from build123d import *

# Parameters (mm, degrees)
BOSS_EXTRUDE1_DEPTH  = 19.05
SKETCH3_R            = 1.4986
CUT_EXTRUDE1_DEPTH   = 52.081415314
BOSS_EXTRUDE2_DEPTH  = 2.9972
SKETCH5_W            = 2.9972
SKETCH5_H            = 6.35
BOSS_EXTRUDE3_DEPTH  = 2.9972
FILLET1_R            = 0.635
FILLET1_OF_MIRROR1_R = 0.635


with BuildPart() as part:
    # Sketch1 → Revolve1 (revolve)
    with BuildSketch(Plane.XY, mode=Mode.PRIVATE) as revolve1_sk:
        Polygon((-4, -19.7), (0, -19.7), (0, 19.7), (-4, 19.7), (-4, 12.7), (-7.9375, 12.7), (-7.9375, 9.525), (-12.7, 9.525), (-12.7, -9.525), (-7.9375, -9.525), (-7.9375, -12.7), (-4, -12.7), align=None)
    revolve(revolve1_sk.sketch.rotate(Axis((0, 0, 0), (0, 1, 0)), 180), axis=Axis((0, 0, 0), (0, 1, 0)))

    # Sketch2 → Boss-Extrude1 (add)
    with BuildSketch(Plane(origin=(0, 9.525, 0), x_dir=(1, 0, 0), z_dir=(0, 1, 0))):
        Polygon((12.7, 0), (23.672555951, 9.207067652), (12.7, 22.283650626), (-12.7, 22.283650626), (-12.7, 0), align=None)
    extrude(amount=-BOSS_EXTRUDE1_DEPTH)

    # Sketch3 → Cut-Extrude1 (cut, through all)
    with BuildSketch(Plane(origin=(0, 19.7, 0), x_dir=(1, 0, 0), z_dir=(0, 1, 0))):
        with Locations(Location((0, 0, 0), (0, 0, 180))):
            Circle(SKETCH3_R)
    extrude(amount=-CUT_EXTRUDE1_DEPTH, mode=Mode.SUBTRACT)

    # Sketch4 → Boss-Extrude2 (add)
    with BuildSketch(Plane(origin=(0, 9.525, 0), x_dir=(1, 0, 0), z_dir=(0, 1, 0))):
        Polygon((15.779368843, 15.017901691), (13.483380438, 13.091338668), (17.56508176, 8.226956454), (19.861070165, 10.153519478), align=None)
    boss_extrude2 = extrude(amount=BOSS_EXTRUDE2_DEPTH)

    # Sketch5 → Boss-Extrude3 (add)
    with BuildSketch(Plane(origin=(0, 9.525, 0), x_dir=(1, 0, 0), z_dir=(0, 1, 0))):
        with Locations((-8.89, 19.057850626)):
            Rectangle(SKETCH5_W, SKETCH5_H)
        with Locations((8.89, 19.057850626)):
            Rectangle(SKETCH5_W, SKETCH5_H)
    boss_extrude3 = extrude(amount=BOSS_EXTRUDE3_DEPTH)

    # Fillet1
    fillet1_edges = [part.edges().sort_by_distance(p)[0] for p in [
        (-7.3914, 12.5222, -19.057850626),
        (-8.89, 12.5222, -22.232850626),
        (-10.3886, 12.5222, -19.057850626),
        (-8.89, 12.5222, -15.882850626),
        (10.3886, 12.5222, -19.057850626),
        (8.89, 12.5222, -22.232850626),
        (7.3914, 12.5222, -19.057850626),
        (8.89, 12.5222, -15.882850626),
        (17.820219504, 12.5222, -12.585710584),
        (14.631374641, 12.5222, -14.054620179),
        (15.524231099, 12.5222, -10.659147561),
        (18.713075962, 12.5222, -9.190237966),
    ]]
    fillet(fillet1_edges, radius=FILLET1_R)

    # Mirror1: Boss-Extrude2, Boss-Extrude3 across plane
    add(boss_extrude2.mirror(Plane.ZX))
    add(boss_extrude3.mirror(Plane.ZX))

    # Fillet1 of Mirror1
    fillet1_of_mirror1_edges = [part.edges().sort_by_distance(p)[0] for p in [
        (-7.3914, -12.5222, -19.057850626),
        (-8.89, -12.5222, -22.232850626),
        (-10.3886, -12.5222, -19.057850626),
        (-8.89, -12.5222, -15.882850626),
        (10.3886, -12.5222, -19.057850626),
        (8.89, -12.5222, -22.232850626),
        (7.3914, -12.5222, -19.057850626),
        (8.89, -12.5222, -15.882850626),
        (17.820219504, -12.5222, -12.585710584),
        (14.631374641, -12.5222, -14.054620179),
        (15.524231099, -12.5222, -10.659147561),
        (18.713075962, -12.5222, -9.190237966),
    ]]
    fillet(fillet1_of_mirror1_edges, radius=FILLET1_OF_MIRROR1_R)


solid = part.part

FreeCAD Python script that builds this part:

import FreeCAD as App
import Part
import Sketcher
from FreeCAD import Vector
Q = App.Units.Quantity


def edges_at(feature, points):
    """Names of the edges that pass closest to the given points."""
    edges = feature.Shape.Edges
    near = lambda p: min(range(len(edges)), key=lambda i: edges[i].distToShape(Part.Vertex(*p))[0])
    return sorted({f"Edge{near(p) + 1}" for p in points})


def add_polygon(sketch, points):
    """Adds a closed chain of lines whose ends are joined by coincident constraints."""
    first, n = sketch.GeometryCount, len(points)
    for a, b in zip(points, points[1:] + points[:1]):
        sketch.addGeometry(Part.LineSegment(App.Vector(*a, 0), App.Vector(*b, 0)), False)
    for i in range(n):
        sketch.addConstraint(Sketcher.Constraint("Coincident", first + i, 2, first + (i + 1) % n, 1))

doc = App.newDocument("Part")
params = doc.addObject("Spreadsheet::Sheet", "Params")
for row, (alias, value) in enumerate([
    ("sketch1_height", "0.75 in"),
    ("sketch1_width", "0.1875 in"),
    ("revolution_angle", "360 deg"),
    ("sketch2_width", "1 in"),
    ("pad1_length", "0.75 in"),
    ("sketch3_diameter", "0.118 in"),
    ("sketch4_length", "0.25 in"),
    ("sketch4_length2", "0.118 in"),
    ("pad2_length", "0.118 in"),
    ("sketch5_height", "0.25 in"),
    ("sketch5_width", "0.118 in"),
    ("pad3_length", "0.118 in"),
    ("fillet_radius", "0.025 in"),
    ("fillet2_radius", "0.025 in"),
], start=1):
    params.set(f"A{row}", alias)
    params.set(f"B{row}", "=" + value)
    params.setAlias(f"B{row}", alias)

body = doc.addObject("PartDesign::Body", "Body")

# Sketch on XY plane
sketch1 = body.newObject("Sketcher::SketchObject", "Sketch")
sketch1.AttachmentSupport = (doc.getObject("XY_Plane"), [""])
sketch1.MapMode = "FlatFace"
add_polygon(sketch1, [(-4, -19.7), (0, -19.7), (0, 19.7), (-4, 19.7), (-4, 12.7), (-7.9, 12.7), (-7.9, 9.5), (-12.7, 9.5), (-12.7, -9.5), (-7.9, -9.5), (-7.9, -12.7), (-4, -12.7)])  # lines 0-11
sketch1.addConstraint([
    Sketcher.Constraint("Horizontal", 0),
    Sketcher.Constraint("Vertical", 1),
    Sketcher.Constraint("Horizontal", 2),
    Sketcher.Constraint("Vertical", 3),
    Sketcher.Constraint("Horizontal", 4),
    Sketcher.Constraint("Vertical", 5),
    Sketcher.Constraint("Horizontal", 6),
    Sketcher.Constraint("Vertical", 7),
    Sketcher.Constraint("Horizontal", 8),
    Sketcher.Constraint("Vertical", 9),
    Sketcher.Constraint("Horizontal", 10),
    Sketcher.Constraint("Vertical", 11),
    Sketcher.Constraint("Symmetric", 0, 2, 1, 2, -1, 1),
    Sketcher.Constraint("Symmetric", 5, 2, 8, 2, -1),
    Sketcher.Constraint("Symmetric", 3, 2, 10, 2, -1),
    Sketcher.Constraint("DistanceY", 7, 2, 7, 1, Q("0.75 in")),
    Sketcher.Constraint("DistanceY", -1, 1, 3, 2, Q("0.5 in")),
    Sketcher.Constraint("DistanceX", 6, 2, -1, 1, Q("0.5 in")),
    Sketcher.Constraint("DistanceX", 6, 2, 6, 1, Q("0.1875 in")),
    Sketcher.Constraint("DistanceX", 0, 1, 0, 2, 4.0),
    Sketcher.Constraint("DistanceY", 1, 1, 1, 2, 39.4),
])
sketch1.setExpression("Constraints[27]", "Params.sketch1_height")
sketch1.setExpression("Constraints[30]", "Params.sketch1_width")
revolution = body.newObject("PartDesign::Revolution", "Revolution")
revolution.Profile = sketch1
revolution.ReferenceAxis = (sketch1, ["V_Axis"])
revolution.setExpression("Angle", "Params.revolution_angle")

# Sketch on XZ plane
sketch2 = body.newObject("Sketcher::SketchObject", "Sketch001")
sketch2.AttachmentSupport = (doc.getObject("XZ_Plane"), [""])
sketch2.MapMode = "FlatFace"
sketch2.AttachmentOffset = App.Placement(Vector(0, 0, -0.375 * 25.4), App.Rotation())
add_polygon(sketch2, [(13, 0), (24, -9), (13, -22), (-13, -22), (-13, 0)])  # lines 0-4
sketch2.addConstraint([
    Sketcher.Constraint("Horizontal", 2),
    Sketcher.Constraint("Vertical", 3),
    Sketcher.Constraint("Horizontal", 4),
    Sketcher.Constraint("Symmetric", 3, 2, 4, 2, -1, 1),
    Sketcher.Constraint("Perpendicular", 0, 1),
    Sketcher.Constraint("Vertical", 1, 2, 4, 2),
    Sketcher.Constraint("DistanceX", 2, 2, 2, 1, Q("1 in")),
    Sketcher.Constraint("Angle", 0, Q("-40 deg")),
    Sketcher.Constraint("DistanceY", 3, 1, 3, 2, 22.283651),
])
sketch2.setExpression("Constraints[11]", "Params.sketch2_width")
pad1 = body.newObject("PartDesign::Pad", "Pad")
pad1.Profile = sketch2
pad1.setExpression("Length", "Params.pad1_length")

# Sketch on XZ plane
sketch3 = body.newObject("Sketcher::SketchObject", "Sketch002")
sketch3.AttachmentSupport = (doc.getObject("XZ_Plane"), [""])
sketch3.MapMode = "FlatFace"
sketch3.AttachmentOffset = App.Placement(Vector(0, 0, -19.7), App.Rotation())
sketch3.addGeometry(Part.Circle(Vector(0, 0, 0), Vector(0, 0, 1), 1.5), False)
sketch3.addConstraint([
    Sketcher.Constraint("Coincident", 0, 3, -1, 1),
    Sketcher.Constraint("Diameter", 0, Q("0.118 in")),
])
sketch3.setExpression("Constraints[1]", "Params.sketch3_diameter")
pocket1 = body.newObject("PartDesign::Pocket", "Pocket")
pocket1.Profile = sketch3
pocket1.Type = "ThroughAll"
pocket1.Reversed = True

# Sketch on XZ plane
sketch4 = body.newObject("Sketcher::SketchObject", "Sketch003")
sketch4.AttachmentSupport = (doc.getObject("XZ_Plane"), [""])
sketch4.MapMode = "FlatFace"
sketch4.AttachmentOffset = App.Placement(Vector(0, 0, -0.375 * 25.4), App.Rotation())
add_polygon(sketch4, [(15.8, -15), (13.5, -13.1), (17.6, -8.2), (19.9, -10.2)])  # lines 0-3
sketch4.addConstraint([
    Sketcher.Constraint("Perpendicular", 0, 1),
    Sketcher.Constraint("Perpendicular", 1, 2),
    Sketcher.Constraint("Perpendicular", 2, 3),
    Sketcher.Constraint("Angle", 0, Q("140 deg")),
    Sketcher.Constraint("Distance", 1, Q("0.25 in")),
    Sketcher.Constraint("Distance", 0, Q("0.118 in")),
    Sketcher.Constraint("DistanceY", 3, 2, -1, 1, 15.017902),
    Sketcher.Constraint("DistanceX", -1, 1, 0, 2, 13.48338),
])
sketch4.setExpression("Constraints[8]", "Params.sketch4_length")
sketch4.setExpression("Constraints[9]", "Params.sketch4_length2")
pad2 = body.newObject("PartDesign::Pad", "Pad001")
pad2.Profile = sketch4
pad2.setExpression("Length", "Params.pad2_length")
pad2.Reversed = True

# Sketch on XZ plane
sketch5 = body.newObject("Sketcher::SketchObject", "Sketch004")
sketch5.AttachmentSupport = (doc.getObject("XZ_Plane"), [""])
sketch5.MapMode = "FlatFace"
sketch5.AttachmentOffset = App.Placement(Vector(0, 0, -0.375 * 25.4), App.Rotation())
add_polygon(sketch5, [(-10.4, -22.2), (-10.4, -15.9), (-7.4, -15.9), (-7.4, -22.2)])  # lines 0-3
add_polygon(sketch5, [(7.4, -22.2), (7.4, -15.9), (10.4, -15.9), (10.4, -22.2)])  # lines 4-7
sketch5.addConstraint([
    Sketcher.Constraint("Vertical", 0),
    Sketcher.Constraint("Horizontal", 1),
    Sketcher.Constraint("Vertical", 2),
    Sketcher.Constraint("Horizontal", 3),
    Sketcher.Constraint("Vertical", 4),
    Sketcher.Constraint("Horizontal", 5),
    Sketcher.Constraint("Vertical", 6),
    Sketcher.Constraint("Horizontal", 7),
    Sketcher.Constraint("Symmetric", 1, 2, 4, 2, -2),
    Sketcher.Constraint("Symmetric", 3, 2, 6, 2, -2),
    Sketcher.Constraint("DistanceY", 0, 1, 0, 2, Q("0.25 in")),
    Sketcher.Constraint("DistanceX", 0, 2, 4, 2, Q("0.7 in")),
    Sketcher.Constraint("DistanceX", 1, 1, 1, 2, Q("0.118 in")),
    Sketcher.Constraint("DistanceY", 0, 2, -1, 1, 15.882851),
])
sketch5.setExpression("Constraints[18]", "Params.sketch5_height")
sketch5.setExpression("Constraints[20]", "Params.sketch5_width")
pad3 = body.newObject("PartDesign::Pad", "Pad002")
pad3.Profile = sketch5
pad3.setExpression("Length", "Params.pad3_length")
pad3.Reversed = True
doc.recompute()

fillet = body.newObject("PartDesign::Fillet", "Fillet")
fillet.Base = (pad3, edges_at(pad3, [
    (-7.391, 12.522, -19.058),
    (-8.89, 12.522, -22.233),
    (-10.389, 12.522, -19.058),
    (-8.89, 12.522, -15.883),
    (10.389, 12.522, -19.058),
    (8.89, 12.522, -22.233),
    (7.391, 12.522, -19.058),
    (8.89, 12.522, -15.883),
    (17.82, 12.522, -12.586),
    (14.631, 12.522, -14.055),
    (15.524, 12.522, -10.659),
    (18.713, 12.522, -9.19),
]))
fillet.setExpression("Radius", "Params.fillet_radius")
doc.recompute()

mirrored = body.newObject("PartDesign::Mirrored", "Mirrored")
mirrored.Originals = [pad2, pad3]
mirrored.MirrorPlane = (doc.getObject("XZ_Plane"), [""])
body.Tip = mirrored
doc.recompute()

fillet2 = body.newObject("PartDesign::Fillet", "Fillet001")
fillet2.Base = (mirrored, edges_at(mirrored, [
    (-7.391, -12.522, -19.058),
    (-8.89, -12.522, -22.233),
    (-10.389, -12.522, -19.058),
    (-8.89, -12.522, -15.883),
    (10.389, -12.522, -19.058),
    (8.89, -12.522, -22.233),
    (7.391, -12.522, -19.058),
    (8.89, -12.522, -15.883),
    (17.82, -12.522, -12.586),
    (14.631, -12.522, -14.055),
    (15.524, -12.522, -10.659),
    (18.713, -12.522, -9.19),
]))
fillet2.setExpression("Radius", "Params.fillet2_radius")

doc.recompute()
